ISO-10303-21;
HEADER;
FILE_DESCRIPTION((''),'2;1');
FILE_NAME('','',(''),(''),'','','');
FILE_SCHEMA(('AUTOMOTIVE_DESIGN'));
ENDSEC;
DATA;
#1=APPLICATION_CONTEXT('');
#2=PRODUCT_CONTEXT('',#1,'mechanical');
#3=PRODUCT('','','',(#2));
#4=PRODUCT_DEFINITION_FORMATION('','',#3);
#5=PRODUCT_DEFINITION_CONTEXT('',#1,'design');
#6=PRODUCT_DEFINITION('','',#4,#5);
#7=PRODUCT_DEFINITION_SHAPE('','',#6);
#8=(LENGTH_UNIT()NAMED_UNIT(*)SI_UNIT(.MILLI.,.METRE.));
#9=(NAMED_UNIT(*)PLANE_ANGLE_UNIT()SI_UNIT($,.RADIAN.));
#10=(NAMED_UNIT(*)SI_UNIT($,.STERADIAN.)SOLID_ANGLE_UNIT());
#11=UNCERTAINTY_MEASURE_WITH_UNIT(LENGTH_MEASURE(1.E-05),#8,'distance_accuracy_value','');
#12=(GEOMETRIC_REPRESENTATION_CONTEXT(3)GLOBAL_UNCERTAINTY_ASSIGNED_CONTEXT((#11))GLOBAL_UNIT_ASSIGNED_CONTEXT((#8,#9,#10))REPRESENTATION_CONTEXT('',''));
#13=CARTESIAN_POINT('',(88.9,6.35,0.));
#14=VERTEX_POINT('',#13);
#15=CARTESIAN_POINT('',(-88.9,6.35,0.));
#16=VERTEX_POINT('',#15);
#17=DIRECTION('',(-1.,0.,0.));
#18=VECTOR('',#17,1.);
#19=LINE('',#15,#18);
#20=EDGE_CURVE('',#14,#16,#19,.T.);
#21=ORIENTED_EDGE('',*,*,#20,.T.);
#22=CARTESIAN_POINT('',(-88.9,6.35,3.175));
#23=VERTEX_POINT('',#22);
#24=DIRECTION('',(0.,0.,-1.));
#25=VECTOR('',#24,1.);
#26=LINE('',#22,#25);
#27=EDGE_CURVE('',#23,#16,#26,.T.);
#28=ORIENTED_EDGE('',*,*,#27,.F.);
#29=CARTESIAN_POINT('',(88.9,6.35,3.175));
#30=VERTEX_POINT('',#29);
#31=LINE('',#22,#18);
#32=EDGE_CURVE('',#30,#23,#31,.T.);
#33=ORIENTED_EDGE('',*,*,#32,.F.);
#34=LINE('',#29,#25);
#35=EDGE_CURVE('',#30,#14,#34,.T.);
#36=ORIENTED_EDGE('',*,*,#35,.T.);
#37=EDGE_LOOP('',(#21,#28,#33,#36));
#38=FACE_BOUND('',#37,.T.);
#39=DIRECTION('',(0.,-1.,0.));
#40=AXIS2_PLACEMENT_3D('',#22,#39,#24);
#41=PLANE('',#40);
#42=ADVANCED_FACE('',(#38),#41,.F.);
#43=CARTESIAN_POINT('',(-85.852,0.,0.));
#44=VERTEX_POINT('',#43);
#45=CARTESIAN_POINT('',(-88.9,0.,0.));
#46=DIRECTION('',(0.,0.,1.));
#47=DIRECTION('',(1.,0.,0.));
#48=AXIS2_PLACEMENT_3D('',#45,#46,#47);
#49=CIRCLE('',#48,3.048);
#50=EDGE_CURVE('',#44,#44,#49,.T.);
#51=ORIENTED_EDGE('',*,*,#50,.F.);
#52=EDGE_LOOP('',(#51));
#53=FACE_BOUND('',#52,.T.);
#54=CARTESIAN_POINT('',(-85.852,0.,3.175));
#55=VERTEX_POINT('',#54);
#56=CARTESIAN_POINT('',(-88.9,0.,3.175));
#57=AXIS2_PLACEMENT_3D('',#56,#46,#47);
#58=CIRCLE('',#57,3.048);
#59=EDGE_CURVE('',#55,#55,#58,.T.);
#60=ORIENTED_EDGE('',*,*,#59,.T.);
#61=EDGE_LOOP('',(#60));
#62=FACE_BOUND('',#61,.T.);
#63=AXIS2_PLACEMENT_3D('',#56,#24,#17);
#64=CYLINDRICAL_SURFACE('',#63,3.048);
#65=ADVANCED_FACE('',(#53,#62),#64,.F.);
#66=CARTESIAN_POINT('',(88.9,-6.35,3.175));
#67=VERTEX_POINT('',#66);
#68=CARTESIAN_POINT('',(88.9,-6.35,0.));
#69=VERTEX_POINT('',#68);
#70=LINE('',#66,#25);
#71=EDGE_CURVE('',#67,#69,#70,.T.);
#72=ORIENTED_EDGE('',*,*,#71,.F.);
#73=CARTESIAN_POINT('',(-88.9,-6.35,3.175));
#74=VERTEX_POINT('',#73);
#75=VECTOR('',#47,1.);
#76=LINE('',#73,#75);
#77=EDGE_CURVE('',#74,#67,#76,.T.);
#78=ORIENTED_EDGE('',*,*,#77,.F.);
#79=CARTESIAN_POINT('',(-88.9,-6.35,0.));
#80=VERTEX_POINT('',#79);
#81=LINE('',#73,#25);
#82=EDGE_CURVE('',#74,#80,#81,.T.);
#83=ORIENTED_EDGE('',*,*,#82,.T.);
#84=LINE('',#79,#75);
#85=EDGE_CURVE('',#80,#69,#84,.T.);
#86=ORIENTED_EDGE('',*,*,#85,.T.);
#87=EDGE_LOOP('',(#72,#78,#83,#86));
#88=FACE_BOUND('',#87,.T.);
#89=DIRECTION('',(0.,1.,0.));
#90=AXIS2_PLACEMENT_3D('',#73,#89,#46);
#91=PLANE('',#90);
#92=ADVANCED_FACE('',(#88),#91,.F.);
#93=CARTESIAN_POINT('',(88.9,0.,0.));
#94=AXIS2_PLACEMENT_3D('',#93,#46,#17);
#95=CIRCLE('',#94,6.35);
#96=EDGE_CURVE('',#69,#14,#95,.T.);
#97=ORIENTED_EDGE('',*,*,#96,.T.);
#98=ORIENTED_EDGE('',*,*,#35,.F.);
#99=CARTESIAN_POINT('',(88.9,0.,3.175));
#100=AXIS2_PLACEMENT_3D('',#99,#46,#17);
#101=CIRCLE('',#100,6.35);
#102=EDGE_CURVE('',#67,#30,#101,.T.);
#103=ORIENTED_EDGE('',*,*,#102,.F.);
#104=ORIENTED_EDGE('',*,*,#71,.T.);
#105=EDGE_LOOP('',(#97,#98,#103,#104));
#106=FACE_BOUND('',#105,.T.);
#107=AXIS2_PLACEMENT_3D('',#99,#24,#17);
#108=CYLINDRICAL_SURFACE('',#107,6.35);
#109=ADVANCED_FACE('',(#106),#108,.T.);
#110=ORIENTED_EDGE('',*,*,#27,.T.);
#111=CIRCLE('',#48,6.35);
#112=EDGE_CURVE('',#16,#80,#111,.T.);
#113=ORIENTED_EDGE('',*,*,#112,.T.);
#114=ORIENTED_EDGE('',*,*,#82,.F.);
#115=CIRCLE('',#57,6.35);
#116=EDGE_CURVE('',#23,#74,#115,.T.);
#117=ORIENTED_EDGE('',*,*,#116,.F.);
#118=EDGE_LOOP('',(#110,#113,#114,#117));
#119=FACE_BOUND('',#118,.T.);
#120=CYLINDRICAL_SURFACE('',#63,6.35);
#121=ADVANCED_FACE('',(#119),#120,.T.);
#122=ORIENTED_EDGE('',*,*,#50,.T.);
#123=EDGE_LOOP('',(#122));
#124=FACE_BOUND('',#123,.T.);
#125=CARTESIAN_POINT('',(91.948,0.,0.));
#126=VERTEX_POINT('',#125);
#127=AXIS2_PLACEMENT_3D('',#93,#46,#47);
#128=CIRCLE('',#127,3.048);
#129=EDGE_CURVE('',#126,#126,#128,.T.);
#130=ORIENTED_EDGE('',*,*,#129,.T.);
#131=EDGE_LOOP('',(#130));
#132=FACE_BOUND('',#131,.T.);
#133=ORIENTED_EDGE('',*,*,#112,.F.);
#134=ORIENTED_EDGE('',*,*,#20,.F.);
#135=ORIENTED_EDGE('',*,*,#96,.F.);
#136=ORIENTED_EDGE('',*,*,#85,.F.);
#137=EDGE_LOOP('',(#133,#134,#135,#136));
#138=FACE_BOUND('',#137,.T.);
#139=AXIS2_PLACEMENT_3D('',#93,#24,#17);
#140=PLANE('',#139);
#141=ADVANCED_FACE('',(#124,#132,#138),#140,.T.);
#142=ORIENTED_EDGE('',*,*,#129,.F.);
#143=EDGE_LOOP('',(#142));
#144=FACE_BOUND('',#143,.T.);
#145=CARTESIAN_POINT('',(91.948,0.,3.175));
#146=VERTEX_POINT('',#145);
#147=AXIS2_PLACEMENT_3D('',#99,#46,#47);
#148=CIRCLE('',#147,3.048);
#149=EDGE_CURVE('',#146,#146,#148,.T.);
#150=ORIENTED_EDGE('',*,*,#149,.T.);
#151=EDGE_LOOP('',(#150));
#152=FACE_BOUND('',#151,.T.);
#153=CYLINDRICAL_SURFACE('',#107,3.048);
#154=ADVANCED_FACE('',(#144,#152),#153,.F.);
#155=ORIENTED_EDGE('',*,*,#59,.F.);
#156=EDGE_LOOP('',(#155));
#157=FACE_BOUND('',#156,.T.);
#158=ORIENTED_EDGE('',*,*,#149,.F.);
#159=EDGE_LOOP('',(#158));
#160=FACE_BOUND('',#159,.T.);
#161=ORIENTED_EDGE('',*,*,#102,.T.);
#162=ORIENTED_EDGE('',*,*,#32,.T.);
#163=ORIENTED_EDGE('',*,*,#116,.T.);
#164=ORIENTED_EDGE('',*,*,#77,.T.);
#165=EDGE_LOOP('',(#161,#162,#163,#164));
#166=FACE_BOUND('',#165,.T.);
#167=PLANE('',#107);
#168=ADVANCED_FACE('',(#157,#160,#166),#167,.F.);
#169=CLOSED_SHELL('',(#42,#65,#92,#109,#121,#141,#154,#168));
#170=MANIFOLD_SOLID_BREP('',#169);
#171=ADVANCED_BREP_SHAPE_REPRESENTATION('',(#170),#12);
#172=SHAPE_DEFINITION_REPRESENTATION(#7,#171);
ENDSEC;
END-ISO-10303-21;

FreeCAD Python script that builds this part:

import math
import FreeCAD as App
import Part
import Sketcher
Q = App.Units.Quantity

doc = App.newDocument("Part")
params = doc.addObject("Spreadsheet::Sheet", "Params")
for row, (alias, value) in enumerate([
    ("sketch1_diameter", "0.24 in"),
    ("sketch1_width", "7 in"),
    ("sketch1_radius", "0.25 in"),
    ("pad1_length", "0.125 in"),
], start=1):
    params.set(f"A{row}", alias)
    params.set(f"B{row}", "=" + value)
    params.setAlias(f"B{row}", alias)

body = doc.addObject("PartDesign::Body", "Body")

# Sketch on XY plane
sketch1 = body.newObject("Sketcher::SketchObject", "Sketch")
sketch1.AttachmentSupport = (doc.getObject("XY_Plane"), [""])
sketch1.MapMode = "FlatFace"
sketch1.addGeometry([
    Part.LineSegment(App.Vector(-88.9, -6.3, 0), App.Vector(88.9, -6.3, 0)),  # 0
    Part.ArcOfCircle(Part.Circle(App.Vector(88.9, 0, 0), App.Vector(0, 0, 1), 6.3), math.radians(-90), math.radians(90)),  # 1
    Part.LineSegment(App.Vector(88.9, 6.3, 0), App.Vector(-88.9, 6.3, 0)),  # 2
    Part.ArcOfCircle(Part.Circle(App.Vector(-88.9, 0, 0), App.Vector(0, 0, 1), 6.3), math.radians(90), math.radians(270)),  # 3
    Part.Circle(App.Vector(-88.9, 0, 0), App.Vector(0, 0, 1), 3),  # 4
    Part.Circle(App.Vector(88.9, 0, 0), App.Vector(0, 0, 1), 3),  # 5
], False)
sketch1.addConstraint([
    Sketcher.Constraint("Tangent", 0, 2, 1, 1),
    Sketcher.Constraint("Tangent", 1, 2, 2, 1),
    Sketcher.Constraint("Tangent", 2, 2, 3, 1),
    Sketcher.Constraint("Tangent", 3, 2, 0, 1),
    Sketcher.Constraint("Horizontal", 0),
    Sketcher.Constraint("Horizontal", 2),
    Sketcher.Constraint("Coincident", 4, 3, 3, 3),
    Sketcher.Constraint("Coincident", 5, 3, 1, 3),
    Sketcher.Constraint("Equal", 4, 5),
    Sketcher.Constraint("Symmetric", 1, 3, 3, 3, -1, 1),
    Sketcher.Constraint("Diameter", 4, Q("0.24 in")),
    Sketcher.Constraint("DistanceX", 0, 1, 0, 2, Q("7 in")),
    Sketcher.Constraint("Radius", 1, Q("0.25 in")),
])
sketch1.setExpression("Constraints[10]", "Params.sketch1_diameter")
sketch1.setExpression("Constraints[11]", "Params.sketch1_width")
sketch1.setExpression("Constraints[12]", "Params.sketch1_radius")
pad1 = body.newObject("PartDesign::Pad", "Pad")
pad1.Profile = sketch1
pad1.setExpression("Length", "Params.pad1_length")

doc.recompute()
